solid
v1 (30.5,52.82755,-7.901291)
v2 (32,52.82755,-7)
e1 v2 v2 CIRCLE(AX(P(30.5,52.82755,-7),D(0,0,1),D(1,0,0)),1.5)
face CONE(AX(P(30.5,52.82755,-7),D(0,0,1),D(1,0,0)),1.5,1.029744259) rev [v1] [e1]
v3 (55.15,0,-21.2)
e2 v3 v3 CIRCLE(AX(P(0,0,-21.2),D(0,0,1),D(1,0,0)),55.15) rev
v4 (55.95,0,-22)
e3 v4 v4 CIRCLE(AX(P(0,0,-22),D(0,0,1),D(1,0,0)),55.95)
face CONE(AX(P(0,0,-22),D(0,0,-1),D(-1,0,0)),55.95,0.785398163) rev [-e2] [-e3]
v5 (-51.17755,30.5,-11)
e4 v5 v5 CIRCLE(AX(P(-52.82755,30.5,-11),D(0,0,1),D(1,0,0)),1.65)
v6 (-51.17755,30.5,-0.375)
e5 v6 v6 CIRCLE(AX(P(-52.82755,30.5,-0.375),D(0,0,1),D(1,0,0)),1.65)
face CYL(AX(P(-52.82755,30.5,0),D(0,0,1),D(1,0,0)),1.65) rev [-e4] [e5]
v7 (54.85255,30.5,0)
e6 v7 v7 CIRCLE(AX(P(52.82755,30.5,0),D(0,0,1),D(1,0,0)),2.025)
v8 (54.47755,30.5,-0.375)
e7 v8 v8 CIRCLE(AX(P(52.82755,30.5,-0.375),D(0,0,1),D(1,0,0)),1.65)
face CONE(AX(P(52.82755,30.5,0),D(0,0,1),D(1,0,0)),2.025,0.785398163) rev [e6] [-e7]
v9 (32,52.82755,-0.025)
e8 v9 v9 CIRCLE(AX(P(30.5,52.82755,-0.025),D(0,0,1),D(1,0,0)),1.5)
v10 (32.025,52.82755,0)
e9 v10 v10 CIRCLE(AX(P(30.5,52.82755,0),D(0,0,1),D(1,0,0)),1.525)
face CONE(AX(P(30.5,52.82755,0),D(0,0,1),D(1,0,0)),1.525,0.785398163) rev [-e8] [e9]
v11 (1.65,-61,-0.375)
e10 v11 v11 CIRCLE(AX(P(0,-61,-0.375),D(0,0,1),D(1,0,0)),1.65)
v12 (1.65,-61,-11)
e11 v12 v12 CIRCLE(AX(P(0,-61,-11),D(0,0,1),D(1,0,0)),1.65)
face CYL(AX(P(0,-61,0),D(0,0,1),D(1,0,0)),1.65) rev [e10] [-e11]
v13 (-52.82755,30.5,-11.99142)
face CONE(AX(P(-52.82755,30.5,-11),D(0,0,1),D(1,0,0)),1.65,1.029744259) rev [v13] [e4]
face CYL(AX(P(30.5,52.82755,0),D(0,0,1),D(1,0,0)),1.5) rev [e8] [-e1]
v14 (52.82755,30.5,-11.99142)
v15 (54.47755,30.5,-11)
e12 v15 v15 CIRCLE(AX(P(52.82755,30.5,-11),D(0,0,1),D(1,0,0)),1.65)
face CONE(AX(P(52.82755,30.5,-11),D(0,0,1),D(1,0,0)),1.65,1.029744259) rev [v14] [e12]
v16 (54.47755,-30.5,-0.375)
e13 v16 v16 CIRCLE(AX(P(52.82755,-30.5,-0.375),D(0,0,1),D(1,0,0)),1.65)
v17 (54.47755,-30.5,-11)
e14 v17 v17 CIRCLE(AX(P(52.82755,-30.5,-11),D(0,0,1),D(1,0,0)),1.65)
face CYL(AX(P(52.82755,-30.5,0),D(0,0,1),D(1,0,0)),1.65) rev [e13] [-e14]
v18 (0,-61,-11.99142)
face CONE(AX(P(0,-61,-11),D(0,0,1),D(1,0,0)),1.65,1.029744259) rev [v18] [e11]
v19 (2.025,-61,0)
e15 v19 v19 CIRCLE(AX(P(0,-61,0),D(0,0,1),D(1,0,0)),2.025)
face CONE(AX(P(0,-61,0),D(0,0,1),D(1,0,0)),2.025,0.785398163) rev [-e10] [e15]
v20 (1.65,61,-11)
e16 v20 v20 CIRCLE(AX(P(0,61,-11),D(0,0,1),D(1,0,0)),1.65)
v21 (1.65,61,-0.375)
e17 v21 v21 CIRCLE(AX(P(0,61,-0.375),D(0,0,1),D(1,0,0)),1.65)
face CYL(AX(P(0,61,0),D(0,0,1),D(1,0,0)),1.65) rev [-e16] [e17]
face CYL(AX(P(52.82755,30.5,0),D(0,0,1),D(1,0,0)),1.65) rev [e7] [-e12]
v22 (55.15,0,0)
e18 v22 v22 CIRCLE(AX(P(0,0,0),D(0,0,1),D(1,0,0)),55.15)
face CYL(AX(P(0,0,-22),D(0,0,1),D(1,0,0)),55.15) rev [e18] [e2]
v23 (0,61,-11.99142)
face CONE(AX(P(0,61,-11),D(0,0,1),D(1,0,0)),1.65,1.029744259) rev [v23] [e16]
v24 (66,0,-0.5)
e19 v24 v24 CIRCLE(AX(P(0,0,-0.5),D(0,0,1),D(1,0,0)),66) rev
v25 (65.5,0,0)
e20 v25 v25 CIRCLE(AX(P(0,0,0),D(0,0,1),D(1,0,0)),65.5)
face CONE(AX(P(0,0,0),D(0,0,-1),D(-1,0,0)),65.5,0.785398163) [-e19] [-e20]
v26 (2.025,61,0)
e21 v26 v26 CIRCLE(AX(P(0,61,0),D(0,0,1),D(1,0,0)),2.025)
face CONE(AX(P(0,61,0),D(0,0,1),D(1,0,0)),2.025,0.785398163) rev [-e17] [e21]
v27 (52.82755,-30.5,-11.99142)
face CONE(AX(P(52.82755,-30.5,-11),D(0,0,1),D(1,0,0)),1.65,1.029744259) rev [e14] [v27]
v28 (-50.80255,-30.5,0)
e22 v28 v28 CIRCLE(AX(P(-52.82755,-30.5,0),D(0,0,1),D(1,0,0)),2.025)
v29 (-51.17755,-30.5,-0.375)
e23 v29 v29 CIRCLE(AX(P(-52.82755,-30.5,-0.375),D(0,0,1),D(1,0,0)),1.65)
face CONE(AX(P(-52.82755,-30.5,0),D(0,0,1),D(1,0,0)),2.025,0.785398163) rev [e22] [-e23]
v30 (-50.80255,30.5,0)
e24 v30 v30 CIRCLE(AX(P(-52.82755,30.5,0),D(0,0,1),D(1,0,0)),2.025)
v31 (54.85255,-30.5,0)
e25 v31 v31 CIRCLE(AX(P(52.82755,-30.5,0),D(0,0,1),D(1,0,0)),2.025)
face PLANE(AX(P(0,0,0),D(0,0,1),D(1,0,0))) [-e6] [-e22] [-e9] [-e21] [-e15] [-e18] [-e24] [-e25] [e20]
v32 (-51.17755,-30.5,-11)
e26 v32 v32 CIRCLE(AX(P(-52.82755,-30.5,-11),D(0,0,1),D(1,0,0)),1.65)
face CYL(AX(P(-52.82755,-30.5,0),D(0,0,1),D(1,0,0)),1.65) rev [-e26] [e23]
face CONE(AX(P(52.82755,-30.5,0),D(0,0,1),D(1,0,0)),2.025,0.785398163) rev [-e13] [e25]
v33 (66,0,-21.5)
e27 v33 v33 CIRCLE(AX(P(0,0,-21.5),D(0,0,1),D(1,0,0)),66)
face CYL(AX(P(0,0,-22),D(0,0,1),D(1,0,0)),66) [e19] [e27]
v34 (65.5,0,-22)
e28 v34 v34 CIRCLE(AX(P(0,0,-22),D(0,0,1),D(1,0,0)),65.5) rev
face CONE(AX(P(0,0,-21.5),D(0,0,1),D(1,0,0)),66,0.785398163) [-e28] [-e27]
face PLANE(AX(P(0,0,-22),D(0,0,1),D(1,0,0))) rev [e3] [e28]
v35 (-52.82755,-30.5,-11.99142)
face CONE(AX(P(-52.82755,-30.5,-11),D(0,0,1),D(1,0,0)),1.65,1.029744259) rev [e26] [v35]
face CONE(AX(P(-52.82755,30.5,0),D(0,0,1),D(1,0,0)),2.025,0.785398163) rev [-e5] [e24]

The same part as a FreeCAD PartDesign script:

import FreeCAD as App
import Part
import Sketcher
from FreeCAD import Vector
Q = App.Units.Quantity


def edges_at(feature, points):
    """Names of the edges that pass closest to the given points."""
    edges = feature.Shape.Edges
    near = lambda p: min(range(len(edges)), key=lambda i: edges[i].distToShape(Part.Vertex(*p))[0])
    return sorted({f"Edge{near(p) + 1}" for p in points})

doc = App.newDocument("Part")
params = doc.addObject("Spreadsheet::Sheet", "Params")
for row, (alias, value) in enumerate([
    ("sketch1_diameter", "132 mm"),
    ("sketch1_diameter2", "110.3 mm"),
    ("pad1_length", "22 mm"),
    ("groove_angle", "360 deg"),
    ("sketch3_diameter", "3 mm"),
    ("hole_diameter", "3 mm"),
    ("hole_depth", "7 mm"),
    ("hole_csink_diameter", "3.05 mm"),
    ("chamfer_size", "0.5 mm"),
    ("chamfer2_size", "0.8 mm"),
], start=1):
    params.set(f"A{row}", alias)
    params.set(f"B{row}", "=" + value)
    params.setAlias(f"B{row}", alias)

body = doc.addObject("PartDesign::Body", "Body")

# Sketch on XY plane
sketch1 = body.newObject("Sketcher::SketchObject", "Sketch")
sketch1.AttachmentSupport = (doc.getObject("XY_Plane"), [""])
sketch1.MapMode = "FlatFace"
sketch1.addGeometry(Part.Circle(Vector(0, 0, 0), Vector(0, 0, 1), 66), False)
sketch1.addGeometry(Part.Circle(Vector(0, 0, 0), Vector(0, 0, 1), 55), False)
sketch1.addConstraint(Sketcher.Constraint("Coincident", 0, 3, -1, 1))
sketch1.addConstraint(Sketcher.Constraint("Coincident", 1, 3, -1, 1))
sketch1.addConstraint(Sketcher.Constraint("Diameter", 0, 132.0))
sketch1.addConstraint(Sketcher.Constraint("Diameter", 1, 110.3))
sketch1.setExpression("Constraints[2]", "Params.sketch1_diameter")
sketch1.setExpression("Constraints[3]", "Params.sketch1_diameter2")
pad1 = body.newObject("PartDesign::Pad", "Pad")
pad1.Profile = sketch1
pad1.setExpression("Length", "Params.pad1_length")
pad1.Reversed = True

# Sketch on YZ plane
sketch2 = body.newObject("Sketcher::SketchObject", "Sketch001")
sketch2.AttachmentSupport = (doc.getObject("YZ_Plane"), [""])
sketch2.MapMode = "FlatFace"
sketch2.addGeometry(Part.LineSegment(Vector(61, -12, 0), Vector(61, 0, 0)), False)
sketch2.addGeometry(Part.LineSegment(Vector(61, 0, 0), Vector(59, 0, 0)), False)
sketch2.addGeometry(Part.LineSegment(Vector(59, 0, 0), Vector(59.4, -0.4, 0)), False)
sketch2.addGeometry(Part.LineSegment(Vector(59.4, -0.4, 0), Vector(59.4, -11, 0)), False)
sketch2.addGeometry(Part.LineSegment(Vector(59.4, -11, 0), Vector(61, -12, 0)), False)
sketch2.addGeometry(Part.LineSegment(Vector(61, 0, 0), Vector(61, -12, 0)), True)  # axis
sketch2.addConstraint(Sketcher.Constraint("Coincident", 0, 2, 1, 1))
sketch2.addConstraint(Sketcher.Constraint("Coincident", 1, 2, 2, 1))
sketch2.addConstraint(Sketcher.Constraint("Coincident", 2, 2, 3, 1))
sketch2.addConstraint(Sketcher.Constraint("Coincident", 3, 2, 4, 1))
sketch2.addConstraint(Sketcher.Constraint("Coincident", 4, 2, 0, 1))
sketch2.addConstraint(Sketcher.Constraint("Vertical", 0))
sketch2.addConstraint(Sketcher.Constraint("Horizontal", 1))
sketch2.addConstraint(Sketcher.Constraint("Vertical", 3))
sketch2.addConstraint(Sketcher.Constraint("Vertical", 5))
sketch2.addConstraint(Sketcher.Constraint("Coincident", 5, 1, 0, 2))
sketch2.addConstraint(Sketcher.Constraint("PointOnObject", 0, 2, -1))
sketch2.addConstraint(Sketcher.Constraint("Equal", 0, 5))
sketch2.addConstraint(Sketcher.Constraint("Angle", 2, Q("-45 deg")))
sketch2.addConstraint(Sketcher.Constraint("Angle", 4, Q("-31 deg")))
sketch2.addConstraint(Sketcher.Constraint("DistanceX", -1, 1, 0, 2, 61.0))
sketch2.addConstraint(Sketcher.Constraint("DistanceY", 3, 2, -1, 1, 11.0))
sketch2.addConstraint(Sketcher.Constraint("DistanceX", 1, 2, 1, 1, 2.025))
sketch2.addConstraint(Sketcher.Constraint("DistanceY", 3, 2, 3, 1, 10.625))
groove = body.newObject("PartDesign::Groove", "Groove")
groove.Profile = sketch2
groove.ReferenceAxis = (sketch2, ["Axis0"])
groove.setExpression("Angle", "Params.groove_angle")
doc.recompute()

polarpattern = body.newObject("PartDesign::PolarPattern", "PolarPattern")
polarpattern.Originals = [groove]
polarpattern.Axis = (doc.getObject("Z_Axis"), [""])
polarpattern.Angle = 360
polarpattern.Occurrences = 6
body.Tip = polarpattern

# Sketch on XY plane
sketch3 = body.newObject("Sketcher::SketchObject", "Sketch002")
sketch3.AttachmentSupport = (doc.getObject("XY_Plane"), [""])
sketch3.MapMode = "FlatFace"
sketch3.addGeometry(Part.Circle(Vector(30.5, 52.8, 0), Vector(0, 0, 1), 1.5), False)
sketch3.addConstraint(Sketcher.Constraint("Diameter", 0, 3.0))
sketch3.addConstraint(Sketcher.Constraint("DistanceX", -1, 1, 0, 3, 30.5))
sketch3.addConstraint(Sketcher.Constraint("DistanceY", -1, 1, 0, 3, 52.82755))
sketch3.setExpression("Constraints[0]", "Params.sketch3_diameter")
doc.recompute()
hole = body.newObject("PartDesign::Hole", "Hole")
hole.Profile = sketch3
hole.ThreadType = "None"
hole.setExpression("Diameter", "Params.hole_diameter")
hole.DepthType = "Dimension"
hole.setExpression("Depth", "Params.hole_depth")
hole.DrillPoint = "Angled"
hole.DrillPointAngle = 118
hole.HoleCutType = "Countersink"
hole.setExpression("HoleCutDiameter", "Params.hole_csink_diameter")
hole.HoleCutCountersinkAngle = 90
doc.recompute()

chamfer = body.newObject("PartDesign::Chamfer", "Chamfer")
chamfer.Base = (hole, edges_at(hole, [(-66, 0, 0), (-66, 0, -22)]))
chamfer.setExpression("Size", "Params.chamfer_size")
doc.recompute()

chamfer2 = body.newObject("PartDesign::Chamfer", "Chamfer001")
chamfer2.Base = (chamfer, edges_at(chamfer, [(-55.15, 0, -22)]))
chamfer2.setExpression("Size", "Params.chamfer2_size")

doc.recompute()
